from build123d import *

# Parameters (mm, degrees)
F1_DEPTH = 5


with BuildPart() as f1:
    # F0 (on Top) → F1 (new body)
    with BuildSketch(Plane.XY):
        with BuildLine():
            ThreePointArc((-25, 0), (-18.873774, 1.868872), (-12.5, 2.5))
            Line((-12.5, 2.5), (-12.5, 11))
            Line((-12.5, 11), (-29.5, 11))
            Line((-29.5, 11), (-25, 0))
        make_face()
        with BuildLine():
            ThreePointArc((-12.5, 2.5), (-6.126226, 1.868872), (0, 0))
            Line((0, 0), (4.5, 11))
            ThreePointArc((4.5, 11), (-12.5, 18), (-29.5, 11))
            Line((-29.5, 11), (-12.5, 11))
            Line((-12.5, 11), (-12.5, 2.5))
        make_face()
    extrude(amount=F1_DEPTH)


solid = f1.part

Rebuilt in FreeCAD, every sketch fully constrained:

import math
import FreeCAD as App
import Part
import Sketcher
from FreeCAD import Vector
Q = App.Units.Quantity

doc = App.newDocument("Part")
params = doc.addObject("Spreadsheet::Sheet", "Params")
for row, (alias, value) in enumerate([
    ("sketch1_radius", "32.500002 mm"),
    ("pad1_length", "5 mm"),
], start=1):
    params.set(f"A{row}", alias)
    params.set(f"B{row}", "=" + value)
    params.setAlias(f"B{row}", alias)

body = doc.addObject("PartDesign::Body", "Body")

sketch1 = doc.addObject("Sketcher::SketchObject", "Sketch")
body.addObject(sketch1)
sketch1.AttachmentSupport = (doc.XY_Plane, [""])
sketch1.MapMode = "FlatFace"
sketch1.addGeometry(Part.ArcOfCircle(Part.Circle(Vector(-12.5, -30.000002, 0), Vector(0, 0, 1), 32.500002), math.radians(90.000001), math.radians(112.619864)), False)
sketch1.addGeometry(Part.ArcOfCircle(Part.Circle(Vector(-12.5, -30.000002, 0), Vector(0, 0, 1), 32.500002), math.radians(67.380136), math.radians(89.999999)), False)
sketch1.addGeometry(Part.LineSegment(Vector(0, 0, 0), Vector(4.5, 11, 0)), False)
sketch1.addGeometry(Part.ArcOfCircle(Part.Circle(Vector(-12.5, -6.142857, 0), Vector(0, 0, 1), 24.142857), math.radians(45.23973), math.radians(134.76027)), False)
sketch1.addGeometry(Part.LineSegment(Vector(-29.5, 11, 0), Vector(-25, 0, 0)), False)
sketch1.addConstraint(Sketcher.Constraint("Tangent", 0, 1, 1, 2))
sketch1.addConstraint(Sketcher.Constraint("Coincident", 1, 1, 2, 1))
sketch1.addConstraint(Sketcher.Constraint("Coincident", 2, 2, 3, 1))
sketch1.addConstraint(Sketcher.Constraint("Coincident", 3, 2, 4, 1))
sketch1.addConstraint(Sketcher.Constraint("Coincident", 4, 2, 0, 2))
sketch1.addConstraint(Sketcher.Constraint("Coincident", 1, 1, -1, 1))
sketch1.addConstraint(Sketcher.Constraint("Equal", 0, 1))
sketch1.addConstraint(Sketcher.Constraint("PointOnObject", 4, 2, -1))
sketch1.addConstraint(Sketcher.Constraint("Horizontal", 2, 2, 3, 2))
sketch1.addConstraint(Sketcher.Constraint("Vertical", 1, 3, 3, 3))
sketch1.addConstraint(Sketcher.Constraint("Vertical", 3, 3, 0, 1))
sketch1.addConstraint(Sketcher.Constraint("Radius", 0, Q("32.500002 mm")))
sketch1.addConstraint(Sketcher.Constraint("DistanceY", 0, 3, -1, 1, Q("30.000002 mm")))
sketch1.addConstraint(Sketcher.Constraint("DistanceY", -1, 1, 2, 2, Q("11 mm")))
sketch1.addConstraint(Sketcher.Constraint("DistanceX", 0, 1, 2, 2, Q("17 mm")))
sketch1.addConstraint(Sketcher.Constraint("Radius", 3, Q("24.142857 mm")))
sketch1.setExpression("Constraints[11]", "Params.sketch1_radius")
pad1 = doc.addObject("PartDesign::Pad", "Pad")
body.addObject(pad1)
pad1.Profile = sketch1
pad1.setExpression("Length", "Params.pad1_length")

doc.recompute()
